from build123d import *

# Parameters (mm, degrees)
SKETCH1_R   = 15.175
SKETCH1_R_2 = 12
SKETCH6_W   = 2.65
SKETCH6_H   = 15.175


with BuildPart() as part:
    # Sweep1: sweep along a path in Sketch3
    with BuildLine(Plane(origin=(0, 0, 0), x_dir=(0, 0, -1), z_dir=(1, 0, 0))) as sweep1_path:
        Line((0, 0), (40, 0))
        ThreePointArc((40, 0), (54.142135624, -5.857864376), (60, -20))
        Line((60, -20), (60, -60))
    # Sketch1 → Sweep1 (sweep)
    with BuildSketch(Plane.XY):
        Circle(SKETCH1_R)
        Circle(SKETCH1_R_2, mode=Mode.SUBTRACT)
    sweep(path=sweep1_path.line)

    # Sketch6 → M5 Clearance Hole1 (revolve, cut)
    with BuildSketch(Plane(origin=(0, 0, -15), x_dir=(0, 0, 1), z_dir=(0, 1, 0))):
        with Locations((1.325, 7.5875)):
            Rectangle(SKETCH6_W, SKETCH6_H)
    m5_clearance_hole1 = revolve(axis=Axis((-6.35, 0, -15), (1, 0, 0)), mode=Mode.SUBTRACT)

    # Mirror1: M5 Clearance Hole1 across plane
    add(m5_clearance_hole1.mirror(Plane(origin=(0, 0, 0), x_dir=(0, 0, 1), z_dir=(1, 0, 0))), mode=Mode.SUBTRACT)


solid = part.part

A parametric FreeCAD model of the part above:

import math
import FreeCAD as App
import Part
import Sketcher

doc = App.newDocument("Part")
body = doc.addObject("PartDesign::Body", "Body")

# Sketch on XY plane
sketch1 = body.newObject("Sketcher::SketchObject", "Sketch")
sketch1.AttachmentSupport = (doc.getObject("XY_Plane"), [""])
sketch1.MapMode = "FlatFace"
sketch1.addGeometry(Part.Circle(App.Vector(0, 0, 0), App.Vector(0, 0, 1), 15), False)
sketch1.addGeometry(Part.Circle(App.Vector(0, 0, 0), App.Vector(0, 0, 1), 12), False)
sketch1.addConstraint(Sketcher.Constraint("Coincident", 0, 3, -1, 1))
sketch1.addConstraint(Sketcher.Constraint("Coincident", 1, 3, -1, 1))
sketch1.addConstraint(Sketcher.Constraint("Diameter", 1, 24.0))
sketch1.addConstraint(Sketcher.Constraint("Diameter", 0, 30.35))

# Sketch on YZ plane
sketch2 = body.newObject("Sketcher::SketchObject", "Sketch001")
sketch2.AttachmentSupport = (doc.getObject("YZ_Plane"), [""])
sketch2.MapMode = "FlatFace"
sketch2.addGeometry(Part.LineSegment(App.Vector(0, 0, 0), App.Vector(0, -40, 0)), False)
sketch2.addGeometry(Part.ArcOfCircle(Part.Circle(App.Vector(-20, -40, 0), App.Vector(0, 0, 1), 20), math.radians(-90), math.radians(0)), False)
sketch2.addGeometry(Part.LineSegment(App.Vector(-20, -60, 0), App.Vector(-60, -60, 0)), False)
sketch2.addConstraint(Sketcher.Constraint("Tangent", 0, 2, 1, 2))
sketch2.addConstraint(Sketcher.Constraint("Tangent", 1, 1, 2, 1))
sketch2.addConstraint(Sketcher.Constraint("Vertical", 0))
sketch2.addConstraint(Sketcher.Constraint("Horizontal", 2))
sketch2.addConstraint(Sketcher.Constraint("Coincident", 0, 1, -1, 1))
sketch2.addConstraint(Sketcher.Constraint("Equal", 2, 0))
sketch2.addConstraint(Sketcher.Constraint("Radius", 1, 20.0))
sketch2.addConstraint(Sketcher.Constraint("DistanceX", 2, 2, 2, 1, 40.0))
doc.recompute()

additivepipe = body.newObject("PartDesign::AdditivePipe", "AdditivePipe")
additivepipe.Profile = sketch1
additivepipe.Spine = (sketch2, ["Edge1", "Edge2", "Edge3"])

# Sketch on XZ plane
sketch3 = body.newObject("Sketcher::SketchObject", "Sketch002")
sketch3.AttachmentSupport = (doc.getObject("XZ_Plane"), [""])
sketch3.MapMode = "FlatFace"
sketch3.addGeometry(Part.LineSegment(App.Vector(15.2, -15, 0), App.Vector(0, -15, 0)), False)
sketch3.addGeometry(Part.LineSegment(App.Vector(0, -15, 0), App.Vector(0, -12.3, 0)), False)
sketch3.addGeometry(Part.LineSegment(App.Vector(0, -12.3, 0), App.Vector(15.2, -12.3, 0)), False)
sketch3.addGeometry(Part.LineSegment(App.Vector(15.2, -12.3, 0), App.Vector(15.2, -15, 0)), False)
sketch3.addGeometry(Part.LineSegment(App.Vector(0, -15, 0), App.Vector(15.2, -15, 0)), True)  # axis
sketch3.addConstraint(Sketcher.Constraint("Coincident", 0, 2, 1, 1))
sketch3.addConstraint(Sketcher.Constraint("Coincident", 1, 2, 2, 1))
sketch3.addConstraint(Sketcher.Constraint("Coincident", 2, 2, 3, 1))
sketch3.addConstraint(Sketcher.Constraint("Coincident", 3, 2, 0, 1))
sketch3.addConstraint(Sketcher.Constraint("Horizontal", 0))
sketch3.addConstraint(Sketcher.Constraint("Vertical", 1))
sketch3.addConstraint(Sketcher.Constraint("Horizontal", 2))
sketch3.addConstraint(Sketcher.Constraint("Vertical", 3))
sketch3.addConstraint(Sketcher.Constraint("Horizontal", 4))
sketch3.addConstraint(Sketcher.Constraint("Coincident", 4, 1, 0, 2))
sketch3.addConstraint(Sketcher.Constraint("PointOnObject", 0, 2, -2))
sketch3.addConstraint(Sketcher.Constraint("Vertical", 2, 2, 4, 2))
sketch3.addConstraint(Sketcher.Constraint("DistanceY", 0, 2, -1, 1, 15.0))
sketch3.addConstraint(Sketcher.Constraint("DistanceY", 1, 1, 1, 2, 2.65))
sketch3.addConstraint(Sketcher.Constraint("DistanceX", 0, 2, 0, 1, 15.175))
groove = body.newObject("PartDesign::Groove", "Groove")
groove.Profile = sketch3
groove.ReferenceAxis = (sketch3, ["Axis0"])
groove.Angle = 360
doc.recompute()

mirrored = body.newObject("PartDesign::Mirrored", "Mirrored")
mirrored.Originals = [groove]
mirrored.MirrorPlane = (doc.getObject("YZ_Plane"), [""])
body.Tip = mirrored

doc.recompute()
